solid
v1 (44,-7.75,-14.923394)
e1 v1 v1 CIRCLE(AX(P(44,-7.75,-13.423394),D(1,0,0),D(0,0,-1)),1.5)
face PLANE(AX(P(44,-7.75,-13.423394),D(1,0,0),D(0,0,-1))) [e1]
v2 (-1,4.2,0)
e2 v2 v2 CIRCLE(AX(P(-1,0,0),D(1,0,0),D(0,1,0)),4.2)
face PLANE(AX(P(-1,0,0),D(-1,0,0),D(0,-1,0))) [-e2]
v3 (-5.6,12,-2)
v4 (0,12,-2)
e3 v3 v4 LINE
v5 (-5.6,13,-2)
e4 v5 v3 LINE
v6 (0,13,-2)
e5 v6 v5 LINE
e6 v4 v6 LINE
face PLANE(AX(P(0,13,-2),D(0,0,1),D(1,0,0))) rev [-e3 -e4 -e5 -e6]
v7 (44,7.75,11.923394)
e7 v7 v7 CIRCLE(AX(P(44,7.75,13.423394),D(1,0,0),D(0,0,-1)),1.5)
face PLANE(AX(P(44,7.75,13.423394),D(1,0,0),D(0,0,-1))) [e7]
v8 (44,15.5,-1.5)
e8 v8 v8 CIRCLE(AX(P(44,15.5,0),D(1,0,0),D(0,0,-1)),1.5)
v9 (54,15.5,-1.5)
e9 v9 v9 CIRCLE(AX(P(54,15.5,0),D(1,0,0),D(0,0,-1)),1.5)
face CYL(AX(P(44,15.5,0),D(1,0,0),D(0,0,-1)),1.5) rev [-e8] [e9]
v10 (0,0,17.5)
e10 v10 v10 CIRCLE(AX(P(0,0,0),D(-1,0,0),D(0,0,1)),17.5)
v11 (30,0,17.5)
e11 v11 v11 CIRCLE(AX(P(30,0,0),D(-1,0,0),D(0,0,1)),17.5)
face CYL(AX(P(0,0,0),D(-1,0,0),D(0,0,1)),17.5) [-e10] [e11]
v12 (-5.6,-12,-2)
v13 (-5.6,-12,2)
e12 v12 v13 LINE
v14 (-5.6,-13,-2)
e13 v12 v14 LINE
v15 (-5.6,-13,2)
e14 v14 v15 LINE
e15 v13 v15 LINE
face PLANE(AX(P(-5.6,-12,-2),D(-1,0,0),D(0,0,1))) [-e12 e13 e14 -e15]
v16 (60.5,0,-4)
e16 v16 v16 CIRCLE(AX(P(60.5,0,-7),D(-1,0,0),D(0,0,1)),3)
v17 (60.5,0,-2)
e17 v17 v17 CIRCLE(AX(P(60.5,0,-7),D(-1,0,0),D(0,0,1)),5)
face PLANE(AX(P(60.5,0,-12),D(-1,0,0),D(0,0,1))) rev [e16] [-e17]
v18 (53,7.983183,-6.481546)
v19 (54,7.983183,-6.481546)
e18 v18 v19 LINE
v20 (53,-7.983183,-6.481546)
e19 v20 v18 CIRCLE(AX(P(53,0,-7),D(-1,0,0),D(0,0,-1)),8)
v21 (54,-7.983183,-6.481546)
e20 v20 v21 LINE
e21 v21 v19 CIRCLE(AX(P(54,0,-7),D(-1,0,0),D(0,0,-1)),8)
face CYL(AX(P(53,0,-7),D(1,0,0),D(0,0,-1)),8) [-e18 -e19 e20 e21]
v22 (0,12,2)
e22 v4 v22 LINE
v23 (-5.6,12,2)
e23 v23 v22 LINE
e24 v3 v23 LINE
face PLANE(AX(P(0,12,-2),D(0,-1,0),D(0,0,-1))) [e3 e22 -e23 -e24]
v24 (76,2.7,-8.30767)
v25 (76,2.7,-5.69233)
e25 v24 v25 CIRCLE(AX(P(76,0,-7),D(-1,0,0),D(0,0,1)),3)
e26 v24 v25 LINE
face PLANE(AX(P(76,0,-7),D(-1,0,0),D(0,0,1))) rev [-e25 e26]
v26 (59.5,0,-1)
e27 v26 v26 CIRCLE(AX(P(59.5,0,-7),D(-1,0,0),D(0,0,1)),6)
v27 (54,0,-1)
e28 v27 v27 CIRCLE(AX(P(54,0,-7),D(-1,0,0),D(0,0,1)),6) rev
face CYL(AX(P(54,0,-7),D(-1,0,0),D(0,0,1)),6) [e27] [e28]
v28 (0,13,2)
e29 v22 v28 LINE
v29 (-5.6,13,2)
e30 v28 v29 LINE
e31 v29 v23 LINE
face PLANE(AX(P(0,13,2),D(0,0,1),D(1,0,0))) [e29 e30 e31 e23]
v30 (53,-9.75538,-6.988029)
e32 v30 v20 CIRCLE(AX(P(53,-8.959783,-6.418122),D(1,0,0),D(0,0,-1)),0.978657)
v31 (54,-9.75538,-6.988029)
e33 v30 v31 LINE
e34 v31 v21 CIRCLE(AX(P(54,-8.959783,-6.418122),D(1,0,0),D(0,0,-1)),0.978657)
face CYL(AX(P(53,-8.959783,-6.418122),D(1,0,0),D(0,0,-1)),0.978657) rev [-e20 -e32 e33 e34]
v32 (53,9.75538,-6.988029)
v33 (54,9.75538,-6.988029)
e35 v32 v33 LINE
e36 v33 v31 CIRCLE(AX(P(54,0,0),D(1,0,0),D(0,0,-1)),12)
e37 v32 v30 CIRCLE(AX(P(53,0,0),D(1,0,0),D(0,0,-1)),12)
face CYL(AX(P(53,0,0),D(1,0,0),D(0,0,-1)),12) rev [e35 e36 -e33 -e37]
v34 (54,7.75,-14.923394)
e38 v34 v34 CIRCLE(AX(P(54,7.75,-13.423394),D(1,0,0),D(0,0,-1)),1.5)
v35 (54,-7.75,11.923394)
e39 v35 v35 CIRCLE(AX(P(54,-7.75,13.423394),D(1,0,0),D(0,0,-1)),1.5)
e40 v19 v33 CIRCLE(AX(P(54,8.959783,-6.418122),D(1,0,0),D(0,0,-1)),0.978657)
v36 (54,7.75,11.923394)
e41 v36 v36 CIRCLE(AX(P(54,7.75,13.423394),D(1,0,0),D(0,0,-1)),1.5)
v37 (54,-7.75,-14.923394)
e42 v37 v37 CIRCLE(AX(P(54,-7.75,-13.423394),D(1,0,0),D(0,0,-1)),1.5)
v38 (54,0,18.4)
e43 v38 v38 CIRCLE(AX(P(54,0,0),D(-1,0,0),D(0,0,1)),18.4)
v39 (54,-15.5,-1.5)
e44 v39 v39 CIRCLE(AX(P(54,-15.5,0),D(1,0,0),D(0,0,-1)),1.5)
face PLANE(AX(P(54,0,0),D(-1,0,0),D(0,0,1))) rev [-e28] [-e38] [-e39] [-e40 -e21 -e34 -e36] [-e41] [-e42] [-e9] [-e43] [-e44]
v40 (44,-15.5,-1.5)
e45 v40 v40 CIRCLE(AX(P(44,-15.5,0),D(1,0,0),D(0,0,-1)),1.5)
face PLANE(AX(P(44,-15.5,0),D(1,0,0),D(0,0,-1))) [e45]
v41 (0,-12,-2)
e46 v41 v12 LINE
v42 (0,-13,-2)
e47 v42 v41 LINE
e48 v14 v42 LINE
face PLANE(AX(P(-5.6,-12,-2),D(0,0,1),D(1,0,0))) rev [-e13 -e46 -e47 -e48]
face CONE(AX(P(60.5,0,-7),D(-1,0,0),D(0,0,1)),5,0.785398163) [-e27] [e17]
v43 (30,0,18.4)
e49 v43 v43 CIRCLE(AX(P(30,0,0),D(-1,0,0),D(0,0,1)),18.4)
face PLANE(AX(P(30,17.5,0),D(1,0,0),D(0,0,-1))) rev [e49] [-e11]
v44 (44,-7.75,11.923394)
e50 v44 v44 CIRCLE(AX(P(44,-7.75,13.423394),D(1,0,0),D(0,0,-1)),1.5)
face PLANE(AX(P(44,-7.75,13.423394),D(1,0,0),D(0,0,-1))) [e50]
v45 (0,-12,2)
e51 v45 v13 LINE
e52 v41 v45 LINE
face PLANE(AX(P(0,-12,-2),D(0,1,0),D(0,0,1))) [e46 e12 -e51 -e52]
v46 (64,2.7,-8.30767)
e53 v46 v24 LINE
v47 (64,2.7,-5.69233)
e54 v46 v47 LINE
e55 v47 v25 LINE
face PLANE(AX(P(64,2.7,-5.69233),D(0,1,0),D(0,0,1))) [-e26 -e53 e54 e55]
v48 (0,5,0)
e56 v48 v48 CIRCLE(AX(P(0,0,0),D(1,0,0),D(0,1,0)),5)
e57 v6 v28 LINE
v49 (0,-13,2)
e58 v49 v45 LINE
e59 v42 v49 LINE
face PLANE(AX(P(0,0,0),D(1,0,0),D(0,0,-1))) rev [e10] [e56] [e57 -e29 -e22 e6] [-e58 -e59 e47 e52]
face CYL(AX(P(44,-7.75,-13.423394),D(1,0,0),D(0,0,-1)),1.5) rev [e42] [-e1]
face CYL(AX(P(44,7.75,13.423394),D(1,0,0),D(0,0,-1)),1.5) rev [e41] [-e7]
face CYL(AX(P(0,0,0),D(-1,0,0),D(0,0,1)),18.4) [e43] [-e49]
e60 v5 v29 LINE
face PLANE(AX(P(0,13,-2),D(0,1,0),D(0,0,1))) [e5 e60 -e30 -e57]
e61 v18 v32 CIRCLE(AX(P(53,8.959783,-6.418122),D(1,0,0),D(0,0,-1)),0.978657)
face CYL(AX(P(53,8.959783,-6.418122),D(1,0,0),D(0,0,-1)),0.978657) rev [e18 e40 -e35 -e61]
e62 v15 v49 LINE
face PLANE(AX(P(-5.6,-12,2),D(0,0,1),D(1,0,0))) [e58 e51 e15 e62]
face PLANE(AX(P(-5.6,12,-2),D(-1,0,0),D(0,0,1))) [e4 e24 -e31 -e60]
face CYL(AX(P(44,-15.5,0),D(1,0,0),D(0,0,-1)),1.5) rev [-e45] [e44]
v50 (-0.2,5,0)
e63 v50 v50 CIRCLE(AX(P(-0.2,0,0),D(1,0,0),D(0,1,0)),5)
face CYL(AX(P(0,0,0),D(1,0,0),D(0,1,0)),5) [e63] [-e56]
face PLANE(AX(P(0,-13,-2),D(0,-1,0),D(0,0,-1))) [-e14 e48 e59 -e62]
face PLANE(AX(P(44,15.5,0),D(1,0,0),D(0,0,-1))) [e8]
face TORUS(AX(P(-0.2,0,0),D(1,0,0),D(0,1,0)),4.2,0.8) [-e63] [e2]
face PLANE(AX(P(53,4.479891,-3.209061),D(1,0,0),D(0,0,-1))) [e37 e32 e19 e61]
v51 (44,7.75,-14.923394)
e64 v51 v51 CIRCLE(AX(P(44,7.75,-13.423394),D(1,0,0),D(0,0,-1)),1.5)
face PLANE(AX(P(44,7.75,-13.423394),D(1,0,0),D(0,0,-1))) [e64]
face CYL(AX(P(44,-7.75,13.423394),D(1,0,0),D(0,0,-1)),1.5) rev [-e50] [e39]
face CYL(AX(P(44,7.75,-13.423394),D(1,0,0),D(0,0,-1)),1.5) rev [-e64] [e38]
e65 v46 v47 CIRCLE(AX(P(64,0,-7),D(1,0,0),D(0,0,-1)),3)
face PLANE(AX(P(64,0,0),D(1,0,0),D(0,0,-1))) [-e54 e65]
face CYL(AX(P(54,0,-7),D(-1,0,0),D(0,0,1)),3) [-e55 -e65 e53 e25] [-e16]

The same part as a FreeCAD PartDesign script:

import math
import FreeCAD as App
import Part
import Sketcher
from FreeCAD import Vector
Q = App.Units.Quantity

doc = App.newDocument("Part")
body = doc.addObject("PartDesign::Body", "Body")

# Sketch on XY plane
sketch1 = body.newObject("Sketcher::SketchObject", "Sketch")
sketch1.AttachmentSupport = (doc.getObject("XY_Plane"), [""])
sketch1.MapMode = "FlatFace"
sketch1.addGeometry([
    Part.LineSegment(Vector(30, 18.4, 0), Vector(30, 17.5, 0)),  # 0
    Part.LineSegment(Vector(30, 17.5, 0), Vector(0, 17.5, 0)),  # 1
    Part.LineSegment(Vector(0, 17.5, 0), Vector(0, 0, 0)),  # 2
    Part.LineSegment(Vector(0, 0, 0), Vector(54, 0, 0)),  # 3
    Part.LineSegment(Vector(54, 0, 0), Vector(54, 18.4, 0)),  # 4
    Part.LineSegment(Vector(54, 18.4, 0), Vector(30, 18.4, 0)),  # 5
], False)
sketch1.addConstraint([
    Sketcher.Constraint("Coincident", 0, 2, 1, 1),
    Sketcher.Constraint("Coincident", 1, 2, 2, 1),
    Sketcher.Constraint("Coincident", 2, 2, 3, 1),
    Sketcher.Constraint("Coincident", 3, 2, 4, 1),
    Sketcher.Constraint("Coincident", 4, 2, 5, 1),
    Sketcher.Constraint("Coincident", 5, 2, 0, 1),
    Sketcher.Constraint("Vertical", 0),
    Sketcher.Constraint("Horizontal", 1),
    Sketcher.Constraint("Vertical", 2),
    Sketcher.Constraint("Horizontal", 3),
    Sketcher.Constraint("Vertical", 4),
    Sketcher.Constraint("Horizontal", 5),
    Sketcher.Constraint("Coincident", 2, 2, -1, 1),
    Sketcher.Constraint("DistanceX", 1, 2, 1, 1, 30.0),
    Sketcher.Constraint("DistanceX", 3, 1, 3, 2, 54.0),
    Sketcher.Constraint("DistanceY", 0, 2, 0, 1, 0.9),
    Sketcher.Constraint("DistanceY", 2, 2, 2, 1, 17.5),
])
revolution = body.newObject("PartDesign::Revolution", "Revolution")
revolution.Profile = sketch1
revolution.ReferenceAxis = (sketch1, ["H_Axis"])
revolution.Angle = 360

# Sketch on YZ plane
sketch2 = body.newObject("Sketcher::SketchObject", "Sketch001")
sketch2.AttachmentSupport = (doc.getObject("YZ_Plane"), [""])
sketch2.MapMode = "FlatFace"
sketch2.AttachmentOffset = App.Placement(Vector(0, 0, 54), App.Rotation())
sketch2.addGeometry([
    Part.Circle(Vector(15.5, 0, 0), Vector(0, 0, 1), 1.5),  # 0
    Part.Circle(Vector(7.8, -13.4, 0), Vector(0, 0, 1), 1.5),  # 1
    Part.Circle(Vector(-7.8, -13.4, 0), Vector(0, 0, 1), 1.5),  # 2
    Part.Circle(Vector(-15.5, 0, 0), Vector(0, 0, 1), 1.5),  # 3
    Part.Circle(Vector(-7.8, 13.4, 0), Vector(0, 0, 1), 1.5),  # 4
    Part.Circle(Vector(7.8, 13.4, 0), Vector(0, 0, 1), 1.5),  # 5
], False)
sketch2.addConstraint([
    Sketcher.Constraint("Equal", 0, 1),
    Sketcher.Constraint("Equal", 1, 2),
    Sketcher.Constraint("Equal", 2, 3),
    Sketcher.Constraint("Equal", 3, 4),
    Sketcher.Constraint("Equal", 4, 5),
    Sketcher.Constraint("Symmetric", 0, 3, 3, 3, -1, 1),
    Sketcher.Constraint("Symmetric", 1, 3, 4, 3, -1, 1),
    Sketcher.Constraint("Symmetric", 2, 3, 5, 3, -1, 1),
    Sketcher.Constraint("Symmetric", 1, 3, 2, 3, -2),
    Sketcher.Constraint("PointOnObject", 0, 3, -1),
    Sketcher.Constraint("Diameter", 0, 3.0),
    Sketcher.Constraint("DistanceX", 3, 3, 0, 3, 31.0),
    Sketcher.Constraint("DistanceX", 2, 3, 1, 3, 15.5),
    Sketcher.Constraint("DistanceY", 1, 3, -1, 1, 13.423394),
])
pocket1 = body.newObject("PartDesign::Pocket", "Pocket")
pocket1.Profile = sketch2
pocket1.Length = 10

# Sketch on XZ plane
sketch3 = body.newObject("Sketcher::SketchObject", "Sketch002")
sketch3.AttachmentSupport = (doc.getObject("XZ_Plane"), [""])
sketch3.MapMode = "FlatFace"
sketch3.addGeometry([
    Part.LineSegment(Vector(54, -7, 0), Vector(76, -7, 0)),  # 0
    Part.LineSegment(Vector(76, -7, 0), Vector(76, -10, 0)),  # 1
    Part.LineSegment(Vector(76, -10, 0), Vector(60.5, -10, 0)),  # 2
    Part.LineSegment(Vector(60.5, -10, 0), Vector(60.5, -12, 0)),  # 3
    Part.LineSegment(Vector(60.5, -12, 0), Vector(59.5, -13, 0)),  # 4
    Part.LineSegment(Vector(59.5, -13, 0), Vector(54, -13, 0)),  # 5
    Part.LineSegment(Vector(54, -13, 0), Vector(54, -7, 0)),  # 6
], False)
sketch3.addGeometry(Part.LineSegment(Vector(54, -7, 0), Vector(76, -7, 0)), True)  # axis
sketch3.addConstraint([
    Sketcher.Constraint("Coincident", 0, 2, 1, 1),
    Sketcher.Constraint("Coincident", 1, 2, 2, 1),
    Sketcher.Constraint("Coincident", 2, 2, 3, 1),
    Sketcher.Constraint("Coincident", 3, 2, 4, 1),
    Sketcher.Constraint("Coincident", 4, 2, 5, 1),
    Sketcher.Constraint("Coincident", 5, 2, 6, 1),
    Sketcher.Constraint("Coincident", 6, 2, 0, 1),
    Sketcher.Constraint("Horizontal", 0),
    Sketcher.Constraint("Vertical", 1),
    Sketcher.Constraint("Horizontal", 2),
    Sketcher.Constraint("Vertical", 3),
    Sketcher.Constraint("Horizontal", 5),
    Sketcher.Constraint("Vertical", 6),
    Sketcher.Constraint("Horizontal", 7),
    Sketcher.Constraint("Coincident", 7, 1, 6, 2),
    Sketcher.Constraint("Vertical", 1, 2, 7, 2),
    Sketcher.Constraint("DistanceX", 0, 1, 0, 2, 22.0),
    Sketcher.Constraint("DistanceY", 1, 2, 1, 1, 3.0),
    Sketcher.Constraint("DistanceY", 3, 2, 3, 1, 2.0),
    Sketcher.Constraint("DistanceY", 6, 1, 6, 2, 6.0),
    Sketcher.Constraint("Angle", 4, Q("-135 deg")),
    Sketcher.Constraint("DistanceX", 2, 2, 2, 1, 15.5),
    Sketcher.Constraint("DistanceX", -1, 1, 0, 2, 76.0),
    Sketcher.Constraint("DistanceY", 0, 2, -1, 1, 7.0),
])
revolution2 = body.newObject("PartDesign::Revolution", "Revolution001")
revolution2.Profile = sketch3
revolution2.ReferenceAxis = (sketch3, ["Axis0"])
revolution2.Angle = 360

# Sketch on YZ plane
sketch4 = body.newObject("Sketcher::SketchObject", "Sketch003")
sketch4.AttachmentSupport = (doc.getObject("YZ_Plane"), [""])
sketch4.MapMode = "FlatFace"
sketch4.AttachmentOffset = App.Placement(Vector(0, 0, 54), App.Rotation())
sketch4.addGeometry([
    Part.ArcOfCircle(Part.Circle(Vector(0, 0, 0), Vector(0, 0, 1), 12), math.radians(-36), math.radians(216)),
    Part.ArcOfCircle(Part.Circle(Vector(-9, -6.4, 0), Vector(0, 0, 1), 1), math.radians(-144), math.radians(-4)),
    Part.ArcOfCircle(Part.Circle(Vector(0, -7, 0), Vector(0, 0, 1), 8), math.radians(4), math.radians(176)),
    Part.ArcOfCircle(Part.Circle(Vector(9, -6.4, 0), Vector(0, 0, 1), 1), math.radians(-176), math.radians(-36)),
], False)
sketch4.addConstraint([
    Sketcher.Constraint("Tangent", 0, 2, 1, 1),
    Sketcher.Constraint("Tangent", 1, 2, 2, 2),
    Sketcher.Constraint("Tangent", 2, 1, 3, 1),
    Sketcher.Constraint("Tangent", 3, 2, 0, 1),
    Sketcher.Constraint("Coincident", 0, 3, -1, 1),
    Sketcher.Constraint("Equal", 1, 3),
    Sketcher.Constraint("PointOnObject", 2, 3, -2),
    Sketcher.Constraint("Radius", 0, 12.0),
    Sketcher.Constraint("Radius", 2, 8.0),
    Sketcher.Constraint("DistanceY", 2, 3, -1, 1, 7.0),
    Sketcher.Constraint("Radius", 1, 0.978657),
])
pocket2 = body.newObject("PartDesign::Pocket", "Pocket001")
pocket2.Profile = sketch4
pocket2.Length = 1

# Sketch on XY plane
sketch5 = body.newObject("Sketcher::SketchObject", "Sketch004")
sketch5.AttachmentSupport = (doc.getObject("XY_Plane"), [""])
sketch5.MapMode = "FlatFace"
sketch5.addGeometry([
    Part.LineSegment(Vector(-5.6, 13, 0), Vector(-5.6, 12, 0)),  # 0
    Part.LineSegment(Vector(-5.6, 12, 0), Vector(0, 12, 0)),  # 1
    Part.LineSegment(Vector(0, 12, 0), Vector(0, 13, 0)),  # 2
    Part.LineSegment(Vector(0, 13, 0), Vector(-5.6, 13, 0)),  # 3
    Part.LineSegment(Vector(-5.6, -12, 0), Vector(-5.6, -13, 0)),  # 4
    Part.LineSegment(Vector(-5.6, -13, 0), Vector(0, -13, 0)),  # 5
    Part.LineSegment(Vector(0, -13, 0), Vector(0, -12, 0)),  # 6
    Part.LineSegment(Vector(0, -12, 0), Vector(-5.6, -12, 0)),  # 7
], False)
sketch5.addConstraint([
    Sketcher.Constraint("Coincident", 0, 2, 1, 1),
    Sketcher.Constraint("Coincident", 1, 2, 2, 1),
    Sketcher.Constraint("Coincident", 2, 2, 3, 1),
    Sketcher.Constraint("Coincident", 3, 2, 0, 1),
    Sketcher.Constraint("Coincident", 4, 2, 5, 1),
    Sketcher.Constraint("Coincident", 5, 2, 6, 1),
    Sketcher.Constraint("Coincident", 6, 2, 7, 1),
    Sketcher.Constraint("Coincident", 7, 2, 4, 1),
    Sketcher.Constraint("Vertical", 0),
    Sketcher.Constraint("Horizontal", 1),
    Sketcher.Constraint("Vertical", 2),
    Sketcher.Constraint("Horizontal", 3),
    Sketcher.Constraint("Vertical", 4),
    Sketcher.Constraint("Horizontal", 5),
    Sketcher.Constraint("Vertical", 6),
    Sketcher.Constraint("Horizontal", 7),
    Sketcher.Constraint("Symmetric", 2, 2, 5, 2, -1, 1),
    Sketcher.Constraint("Symmetric", 1, 2, 6, 2, -1),
    Sketcher.Constraint("Vertical", 3, 2, 4, 2),
    Sketcher.Constraint("DistanceY", 0, 2, 0, 1, 1.0),
    Sketcher.Constraint("DistanceX", 1, 1, 1, 2, 5.6),
    Sketcher.Constraint("DistanceY", -1, 1, 0, 2, 12.0),
])
pad1 = body.newObject("PartDesign::Pad", "Pad")
pad1.Profile = sketch5
pad1.Type = "TwoLengths"
pad1.Length = 2
pad1.Length2 = 2

# Sketch on XY plane
sketch6 = body.newObject("Sketcher::SketchObject", "Sketch005")
sketch6.AttachmentSupport = (doc.getObject("XY_Plane"), [""])
sketch6.MapMode = "FlatFace"
sketch6.addGeometry([
    Part.LineSegment(Vector(-1, 0, 0), Vector(0, 0, 0)),  # 0
    Part.LineSegment(Vector(0, 0, 0), Vector(0, 5, 0)),  # 1
    Part.LineSegment(Vector(0, 5, 0), Vector(-0.2, 5, 0)),  # 2
    Part.ArcOfCircle(Part.Circle(Vector(-0.2, 4.2, 0), Vector(0, 0, 1), 0.8), math.radians(90), math.radians(180)),  # 3
    Part.LineSegment(Vector(-1, 4.2, 0), Vector(-1, 0, 0)),  # 4
], False)
sketch6.addConstraint([
    Sketcher.Constraint("Coincident", 0, 2, 1, 1),
    Sketcher.Constraint("Coincident", 1, 2, 2, 1),
    Sketcher.Constraint("Tangent", 2, 2, 3, 1),
    Sketcher.Constraint("Tangent", 3, 2, 4, 1),
    Sketcher.Constraint("Coincident", 4, 2, 0, 1),
    Sketcher.Constraint("Horizontal", 0),
    Sketcher.Constraint("Vertical", 1),
    Sketcher.Constraint("Horizontal", 2),
    Sketcher.Constraint("Vertical", 4),
    Sketcher.Constraint("Coincident", 0, 2, -1, 1),
    Sketcher.Constraint("Radius", 3, 0.8),
    Sketcher.Constraint("DistanceX", 0, 1, 0, 2, 1.0),
    Sketcher.Constraint("DistanceY", 1, 1, 1, 2, 5.0),
])
revolution3 = body.newObject("PartDesign::Revolution", "Revolution002")
revolution3.Profile = sketch6
revolution3.ReferenceAxis = (sketch6, ["H_Axis"])
revolution3.Angle = 360

# Sketch on YZ plane
sketch7 = body.newObject("Sketcher::SketchObject", "Sketch006")
sketch7.AttachmentSupport = (doc.getObject("YZ_Plane"), [""])
sketch7.MapMode = "FlatFace"
sketch7.AttachmentOffset = App.Placement(Vector(0, 0, 76), App.Rotation())
sketch7.addGeometry([
    Part.LineSegment(Vector(29.1, 29.1, 0), Vector(-29.1, 29.1, 0)),  # 0
    Part.LineSegment(Vector(-29.1, 29.1, 0), Vector(-29.1, -29.1, 0)),  # 1
    Part.LineSegment(Vector(-29.1, -29.1, 0), Vector(29.1, -29.1, 0)),  # 2
    Part.LineSegment(Vector(29.1, -29.1, 0), Vector(29.1, 29.1, 0)),  # 3
    Part.ArcOfCircle(Part.Circle(Vector(0, -7, 0), Vector(0, 0, 1), 3), math.radians(26), math.radians(334)),  # 4
    Part.LineSegment(Vector(2.7, -5.7, 0), Vector(2.7, -8.3, 0)),  # 5
], False)
sketch7.addConstraint([
    Sketcher.Constraint("Coincident", 0, 2, 1, 1),
    Sketcher.Constraint("Coincident", 1, 2, 2, 1),
    Sketcher.Constraint("Coincident", 2, 2, 3, 1),
    Sketcher.Constraint("Coincident", 3, 2, 0, 1),
    Sketcher.Constraint("Coincident", 4, 1, 5, 1),
    Sketcher.Constraint("Coincident", 5, 2, 4, 2),
    Sketcher.Constraint("Horizontal", 0),
    Sketcher.Constraint("Vertical", 1),
    Sketcher.Constraint("Horizontal", 2),
    Sketcher.Constraint("Vertical", 3),
    Sketcher.Constraint("Vertical", 5),
    Sketcher.Constraint("Symmetric", 0, 2, 2, 2, -1, 1),
    Sketcher.Constraint("PointOnObject", 4, 3, -2),
    Sketcher.Constraint("Equal", 2, 1),
    Sketcher.Constraint("Radius", 4, 3.0),
    Sketcher.Constraint("DistanceY", 4, 3, -1, 1, 7.0),
    Sketcher.Constraint("DistanceX", -1, 1, 4, 1, 2.7),
    Sketcher.Constraint("DistanceX", 0, 2, 0, 1, 58.156),
])
pocket3 = body.newObject("PartDesign::Pocket", "Pocket002")
pocket3.Profile = sketch7
pocket3.Length = 12

doc.recompute()
